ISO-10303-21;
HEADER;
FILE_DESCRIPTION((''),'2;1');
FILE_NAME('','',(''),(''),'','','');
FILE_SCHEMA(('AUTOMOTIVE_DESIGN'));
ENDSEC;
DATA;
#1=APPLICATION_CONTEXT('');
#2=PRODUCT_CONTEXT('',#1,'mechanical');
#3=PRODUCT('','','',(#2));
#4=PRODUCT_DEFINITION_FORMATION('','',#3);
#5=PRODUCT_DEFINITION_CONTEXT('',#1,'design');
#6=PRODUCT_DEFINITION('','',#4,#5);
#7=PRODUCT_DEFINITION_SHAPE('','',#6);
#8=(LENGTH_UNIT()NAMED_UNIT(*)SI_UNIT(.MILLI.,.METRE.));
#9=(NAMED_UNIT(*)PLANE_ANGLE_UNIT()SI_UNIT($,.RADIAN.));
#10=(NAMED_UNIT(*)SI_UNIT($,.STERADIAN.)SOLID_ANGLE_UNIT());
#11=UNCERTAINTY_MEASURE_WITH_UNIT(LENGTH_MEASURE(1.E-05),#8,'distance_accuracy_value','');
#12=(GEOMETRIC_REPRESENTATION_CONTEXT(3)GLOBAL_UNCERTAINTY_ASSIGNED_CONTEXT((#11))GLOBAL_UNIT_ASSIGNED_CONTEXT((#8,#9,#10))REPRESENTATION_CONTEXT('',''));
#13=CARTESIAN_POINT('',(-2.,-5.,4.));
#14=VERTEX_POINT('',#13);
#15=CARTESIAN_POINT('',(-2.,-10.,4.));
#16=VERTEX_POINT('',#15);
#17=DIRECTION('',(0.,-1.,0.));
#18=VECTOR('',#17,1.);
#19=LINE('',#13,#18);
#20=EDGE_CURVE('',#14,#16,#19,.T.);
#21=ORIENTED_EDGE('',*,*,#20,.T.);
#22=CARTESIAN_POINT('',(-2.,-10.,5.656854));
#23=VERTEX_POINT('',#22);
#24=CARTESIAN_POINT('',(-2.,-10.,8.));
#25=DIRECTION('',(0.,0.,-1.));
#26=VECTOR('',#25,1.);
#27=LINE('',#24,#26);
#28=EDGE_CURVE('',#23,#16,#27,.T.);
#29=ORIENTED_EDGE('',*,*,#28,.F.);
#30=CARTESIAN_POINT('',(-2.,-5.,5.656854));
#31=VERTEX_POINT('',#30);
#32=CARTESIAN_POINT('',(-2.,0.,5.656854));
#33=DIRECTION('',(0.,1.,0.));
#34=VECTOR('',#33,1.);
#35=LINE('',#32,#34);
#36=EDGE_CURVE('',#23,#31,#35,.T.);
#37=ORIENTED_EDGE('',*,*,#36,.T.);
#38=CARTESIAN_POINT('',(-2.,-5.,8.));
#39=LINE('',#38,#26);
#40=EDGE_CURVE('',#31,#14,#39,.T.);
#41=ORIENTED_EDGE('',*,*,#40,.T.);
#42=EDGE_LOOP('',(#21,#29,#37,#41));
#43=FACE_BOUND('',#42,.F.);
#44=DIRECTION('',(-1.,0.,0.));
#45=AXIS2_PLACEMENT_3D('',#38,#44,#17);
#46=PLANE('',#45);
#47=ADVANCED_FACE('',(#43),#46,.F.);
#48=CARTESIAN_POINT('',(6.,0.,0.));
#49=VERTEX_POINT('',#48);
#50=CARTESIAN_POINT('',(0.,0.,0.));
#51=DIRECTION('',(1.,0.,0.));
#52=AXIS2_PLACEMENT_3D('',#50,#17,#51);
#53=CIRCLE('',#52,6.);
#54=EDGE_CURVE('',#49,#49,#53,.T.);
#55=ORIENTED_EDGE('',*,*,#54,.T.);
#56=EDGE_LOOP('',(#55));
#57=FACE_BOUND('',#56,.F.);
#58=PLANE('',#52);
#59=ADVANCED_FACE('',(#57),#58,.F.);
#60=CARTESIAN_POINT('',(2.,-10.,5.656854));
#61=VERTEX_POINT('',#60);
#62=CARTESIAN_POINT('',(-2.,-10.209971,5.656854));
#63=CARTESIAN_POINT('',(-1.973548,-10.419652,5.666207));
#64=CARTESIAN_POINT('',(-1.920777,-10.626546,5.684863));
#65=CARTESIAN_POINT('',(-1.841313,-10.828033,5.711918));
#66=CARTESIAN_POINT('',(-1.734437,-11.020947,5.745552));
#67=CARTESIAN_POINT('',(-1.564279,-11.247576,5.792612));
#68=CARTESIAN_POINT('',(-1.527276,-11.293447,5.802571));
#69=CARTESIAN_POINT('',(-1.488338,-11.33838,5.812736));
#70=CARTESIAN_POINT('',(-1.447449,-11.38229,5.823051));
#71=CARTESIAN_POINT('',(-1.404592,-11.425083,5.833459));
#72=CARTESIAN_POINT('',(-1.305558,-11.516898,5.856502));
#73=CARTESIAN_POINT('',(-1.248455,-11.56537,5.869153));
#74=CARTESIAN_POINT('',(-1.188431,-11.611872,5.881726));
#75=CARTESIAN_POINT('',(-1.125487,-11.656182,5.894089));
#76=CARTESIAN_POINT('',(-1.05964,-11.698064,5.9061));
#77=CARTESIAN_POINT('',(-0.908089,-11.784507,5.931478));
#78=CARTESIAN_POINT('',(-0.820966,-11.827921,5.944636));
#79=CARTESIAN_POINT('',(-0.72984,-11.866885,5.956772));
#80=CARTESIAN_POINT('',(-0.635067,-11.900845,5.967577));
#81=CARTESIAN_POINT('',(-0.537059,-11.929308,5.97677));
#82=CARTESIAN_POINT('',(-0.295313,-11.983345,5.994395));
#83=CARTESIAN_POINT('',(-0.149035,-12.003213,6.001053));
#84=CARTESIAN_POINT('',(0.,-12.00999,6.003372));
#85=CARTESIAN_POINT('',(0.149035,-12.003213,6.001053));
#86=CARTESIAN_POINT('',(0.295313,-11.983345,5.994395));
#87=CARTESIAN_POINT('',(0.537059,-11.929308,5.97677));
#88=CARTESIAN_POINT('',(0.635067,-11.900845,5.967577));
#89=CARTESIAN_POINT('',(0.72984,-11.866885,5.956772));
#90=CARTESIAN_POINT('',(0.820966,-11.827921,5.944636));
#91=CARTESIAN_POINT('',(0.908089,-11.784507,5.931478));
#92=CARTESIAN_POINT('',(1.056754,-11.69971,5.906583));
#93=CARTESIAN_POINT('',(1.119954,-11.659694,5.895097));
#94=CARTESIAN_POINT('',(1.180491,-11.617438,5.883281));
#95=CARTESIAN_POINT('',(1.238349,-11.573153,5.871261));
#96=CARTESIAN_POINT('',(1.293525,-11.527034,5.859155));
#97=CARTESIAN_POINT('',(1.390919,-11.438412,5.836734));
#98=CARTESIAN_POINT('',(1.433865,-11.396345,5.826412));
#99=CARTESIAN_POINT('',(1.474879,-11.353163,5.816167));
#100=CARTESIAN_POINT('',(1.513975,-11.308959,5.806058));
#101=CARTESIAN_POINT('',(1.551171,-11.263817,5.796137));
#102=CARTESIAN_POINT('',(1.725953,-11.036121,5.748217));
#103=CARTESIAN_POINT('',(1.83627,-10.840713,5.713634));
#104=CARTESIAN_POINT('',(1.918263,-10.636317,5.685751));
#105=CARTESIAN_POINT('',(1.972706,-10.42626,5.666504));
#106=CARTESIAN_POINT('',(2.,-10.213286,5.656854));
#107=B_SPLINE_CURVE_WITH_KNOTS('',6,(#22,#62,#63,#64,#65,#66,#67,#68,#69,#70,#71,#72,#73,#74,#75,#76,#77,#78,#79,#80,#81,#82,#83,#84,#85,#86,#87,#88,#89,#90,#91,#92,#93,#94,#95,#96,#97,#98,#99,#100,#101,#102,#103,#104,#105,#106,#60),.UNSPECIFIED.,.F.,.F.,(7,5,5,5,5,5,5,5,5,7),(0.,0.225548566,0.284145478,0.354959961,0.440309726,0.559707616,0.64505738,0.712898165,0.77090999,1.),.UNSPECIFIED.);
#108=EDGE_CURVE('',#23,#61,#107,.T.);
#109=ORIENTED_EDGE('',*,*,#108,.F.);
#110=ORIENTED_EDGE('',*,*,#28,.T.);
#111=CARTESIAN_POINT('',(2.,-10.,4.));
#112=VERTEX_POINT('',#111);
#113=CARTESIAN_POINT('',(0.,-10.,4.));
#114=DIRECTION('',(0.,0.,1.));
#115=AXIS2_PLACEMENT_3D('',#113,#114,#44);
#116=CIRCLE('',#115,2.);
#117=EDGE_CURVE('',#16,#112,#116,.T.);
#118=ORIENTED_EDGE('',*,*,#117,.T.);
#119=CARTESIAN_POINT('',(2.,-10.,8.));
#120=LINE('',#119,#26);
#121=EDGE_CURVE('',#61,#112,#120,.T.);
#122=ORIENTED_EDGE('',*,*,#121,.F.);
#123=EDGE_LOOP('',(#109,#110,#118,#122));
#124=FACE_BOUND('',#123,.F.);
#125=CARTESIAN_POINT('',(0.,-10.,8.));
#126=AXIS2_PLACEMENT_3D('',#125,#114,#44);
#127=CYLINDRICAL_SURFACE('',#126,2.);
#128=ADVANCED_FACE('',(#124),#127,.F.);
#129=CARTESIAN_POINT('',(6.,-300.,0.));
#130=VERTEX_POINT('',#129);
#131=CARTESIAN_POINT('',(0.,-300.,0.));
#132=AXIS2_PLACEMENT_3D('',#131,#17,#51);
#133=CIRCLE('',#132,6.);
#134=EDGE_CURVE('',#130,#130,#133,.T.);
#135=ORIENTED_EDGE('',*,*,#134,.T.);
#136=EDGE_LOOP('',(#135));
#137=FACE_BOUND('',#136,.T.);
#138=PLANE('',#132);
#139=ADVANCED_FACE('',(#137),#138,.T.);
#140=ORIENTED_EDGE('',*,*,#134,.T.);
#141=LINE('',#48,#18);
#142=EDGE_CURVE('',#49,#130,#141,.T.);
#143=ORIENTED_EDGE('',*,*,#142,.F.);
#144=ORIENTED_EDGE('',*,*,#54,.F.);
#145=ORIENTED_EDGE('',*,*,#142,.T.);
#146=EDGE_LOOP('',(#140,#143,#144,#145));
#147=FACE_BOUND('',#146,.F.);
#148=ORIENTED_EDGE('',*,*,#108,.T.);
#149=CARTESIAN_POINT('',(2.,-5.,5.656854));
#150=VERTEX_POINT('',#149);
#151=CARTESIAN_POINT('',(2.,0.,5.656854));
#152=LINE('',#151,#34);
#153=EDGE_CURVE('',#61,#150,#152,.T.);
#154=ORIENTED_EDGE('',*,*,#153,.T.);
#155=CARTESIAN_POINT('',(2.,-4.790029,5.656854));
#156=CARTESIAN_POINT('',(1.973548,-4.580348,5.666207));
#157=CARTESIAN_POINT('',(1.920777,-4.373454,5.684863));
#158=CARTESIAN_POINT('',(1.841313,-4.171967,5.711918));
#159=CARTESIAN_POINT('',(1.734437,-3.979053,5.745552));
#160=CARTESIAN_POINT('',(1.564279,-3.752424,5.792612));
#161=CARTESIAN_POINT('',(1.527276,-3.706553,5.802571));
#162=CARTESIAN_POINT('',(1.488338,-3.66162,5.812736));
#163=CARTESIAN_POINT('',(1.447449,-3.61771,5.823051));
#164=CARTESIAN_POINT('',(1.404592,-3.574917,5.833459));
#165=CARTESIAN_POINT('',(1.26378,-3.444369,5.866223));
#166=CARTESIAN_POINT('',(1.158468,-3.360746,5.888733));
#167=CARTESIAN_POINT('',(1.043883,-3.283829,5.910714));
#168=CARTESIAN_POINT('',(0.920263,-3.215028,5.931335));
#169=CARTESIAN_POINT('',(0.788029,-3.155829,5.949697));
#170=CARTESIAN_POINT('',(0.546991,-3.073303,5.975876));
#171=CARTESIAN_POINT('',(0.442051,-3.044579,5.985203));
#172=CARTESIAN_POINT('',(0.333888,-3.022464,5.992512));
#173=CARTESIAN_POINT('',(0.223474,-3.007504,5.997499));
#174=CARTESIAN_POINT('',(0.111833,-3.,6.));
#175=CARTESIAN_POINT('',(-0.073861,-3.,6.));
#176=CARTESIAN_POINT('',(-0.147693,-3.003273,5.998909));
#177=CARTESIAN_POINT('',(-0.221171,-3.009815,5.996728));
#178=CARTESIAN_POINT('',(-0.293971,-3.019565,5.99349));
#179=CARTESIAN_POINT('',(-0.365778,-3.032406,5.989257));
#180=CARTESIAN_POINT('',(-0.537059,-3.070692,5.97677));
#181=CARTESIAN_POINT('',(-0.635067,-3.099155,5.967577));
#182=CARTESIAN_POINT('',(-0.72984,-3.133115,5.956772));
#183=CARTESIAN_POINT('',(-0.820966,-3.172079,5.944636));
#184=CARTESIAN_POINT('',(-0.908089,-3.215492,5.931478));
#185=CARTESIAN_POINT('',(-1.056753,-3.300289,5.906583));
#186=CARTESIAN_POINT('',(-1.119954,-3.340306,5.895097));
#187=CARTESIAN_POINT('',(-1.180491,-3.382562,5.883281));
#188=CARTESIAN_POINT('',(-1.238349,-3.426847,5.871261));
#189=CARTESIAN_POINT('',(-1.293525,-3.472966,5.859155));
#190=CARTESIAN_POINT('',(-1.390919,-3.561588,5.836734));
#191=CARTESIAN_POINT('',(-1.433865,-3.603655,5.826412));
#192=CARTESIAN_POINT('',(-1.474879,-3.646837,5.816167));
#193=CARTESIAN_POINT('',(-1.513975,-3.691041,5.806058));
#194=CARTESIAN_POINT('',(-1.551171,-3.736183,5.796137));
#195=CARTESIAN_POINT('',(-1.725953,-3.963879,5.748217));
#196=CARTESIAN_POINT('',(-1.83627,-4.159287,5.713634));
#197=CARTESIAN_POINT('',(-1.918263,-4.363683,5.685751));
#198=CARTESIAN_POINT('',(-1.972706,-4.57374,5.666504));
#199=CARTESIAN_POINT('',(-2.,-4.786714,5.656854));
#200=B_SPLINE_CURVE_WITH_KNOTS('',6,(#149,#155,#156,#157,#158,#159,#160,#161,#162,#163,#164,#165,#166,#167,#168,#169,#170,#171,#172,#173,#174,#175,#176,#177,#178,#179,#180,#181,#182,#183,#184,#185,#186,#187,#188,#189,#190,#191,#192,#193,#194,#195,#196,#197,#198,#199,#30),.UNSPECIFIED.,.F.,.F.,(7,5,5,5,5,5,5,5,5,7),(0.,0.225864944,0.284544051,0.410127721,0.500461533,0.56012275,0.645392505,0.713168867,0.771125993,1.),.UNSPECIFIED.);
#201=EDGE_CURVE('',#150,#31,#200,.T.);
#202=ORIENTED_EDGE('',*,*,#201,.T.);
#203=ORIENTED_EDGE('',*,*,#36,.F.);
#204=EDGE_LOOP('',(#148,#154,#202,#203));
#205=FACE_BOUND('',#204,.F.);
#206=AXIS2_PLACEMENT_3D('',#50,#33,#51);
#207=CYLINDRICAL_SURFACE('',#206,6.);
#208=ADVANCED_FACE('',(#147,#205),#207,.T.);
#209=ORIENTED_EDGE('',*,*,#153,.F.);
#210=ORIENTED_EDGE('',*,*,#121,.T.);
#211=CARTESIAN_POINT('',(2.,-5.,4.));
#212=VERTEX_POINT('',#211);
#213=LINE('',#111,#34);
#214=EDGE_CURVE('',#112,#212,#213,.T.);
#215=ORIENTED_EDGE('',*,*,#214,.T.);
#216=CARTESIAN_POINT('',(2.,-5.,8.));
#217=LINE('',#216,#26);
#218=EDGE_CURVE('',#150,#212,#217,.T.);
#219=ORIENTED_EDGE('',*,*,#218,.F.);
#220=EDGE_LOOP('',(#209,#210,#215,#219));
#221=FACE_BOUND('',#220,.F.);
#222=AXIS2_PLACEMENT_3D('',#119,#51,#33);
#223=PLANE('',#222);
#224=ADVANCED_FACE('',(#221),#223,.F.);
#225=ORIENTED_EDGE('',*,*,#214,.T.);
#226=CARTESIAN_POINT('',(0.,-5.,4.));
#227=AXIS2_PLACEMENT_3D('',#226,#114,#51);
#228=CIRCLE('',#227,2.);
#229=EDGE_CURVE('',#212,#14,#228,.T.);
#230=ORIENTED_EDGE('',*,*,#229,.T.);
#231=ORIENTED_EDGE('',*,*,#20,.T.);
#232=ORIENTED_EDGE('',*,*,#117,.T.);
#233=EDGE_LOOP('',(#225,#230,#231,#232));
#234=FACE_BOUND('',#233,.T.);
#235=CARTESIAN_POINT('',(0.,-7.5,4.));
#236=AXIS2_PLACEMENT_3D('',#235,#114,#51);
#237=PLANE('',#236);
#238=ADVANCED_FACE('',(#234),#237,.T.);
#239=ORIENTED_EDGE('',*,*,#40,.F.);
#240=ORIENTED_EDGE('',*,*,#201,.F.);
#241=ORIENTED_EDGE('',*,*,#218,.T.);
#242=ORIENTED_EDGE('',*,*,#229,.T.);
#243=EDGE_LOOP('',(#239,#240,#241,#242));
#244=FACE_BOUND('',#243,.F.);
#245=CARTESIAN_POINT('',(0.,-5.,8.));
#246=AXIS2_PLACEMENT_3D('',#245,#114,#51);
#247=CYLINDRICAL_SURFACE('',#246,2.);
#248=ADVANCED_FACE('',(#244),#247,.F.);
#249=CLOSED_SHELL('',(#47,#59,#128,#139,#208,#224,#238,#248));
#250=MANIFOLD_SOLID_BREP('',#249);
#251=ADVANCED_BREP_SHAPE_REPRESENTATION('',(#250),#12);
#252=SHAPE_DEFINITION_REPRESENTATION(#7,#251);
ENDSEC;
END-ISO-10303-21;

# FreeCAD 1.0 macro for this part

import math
import FreeCAD as App
import Part
import Sketcher
Q = App.Units.Quantity

doc = App.newDocument("Part")
body = doc.addObject("PartDesign::Body", "Body")

# Sketch on XZ plane
sketch1 = doc.addObject("Sketcher::SketchObject", "Sketch")
body.addObject(sketch1)
sketch1.AttachmentSupport = (doc.XZ_Plane, [""])
sketch1.MapMode = "FlatFace"
sketch1.addGeometry(Part.Circle(App.Vector(0, 0, 0), App.Vector(0, 0, 1), 6), False)
sketch1.addConstraint([
    Sketcher.Constraint("Coincident", 0, 3, -1, 1),
    Sketcher.Constraint("Diameter", 0, Q("12 mm")),
])
pad1 = doc.addObject("PartDesign::Pad", "Pad")
body.addObject(pad1)
pad1.Profile = sketch1
pad1.Length = 300

# Sketch on XY plane
sketch2 = doc.addObject("Sketcher::SketchObject", "Sketch001")
body.addObject(sketch2)
sketch2.AttachmentSupport = (doc.XY_Plane, [""])
sketch2.MapMode = "FlatFace"
sketch2.AttachmentOffset = App.Placement(App.Vector(0, 0, 8), App.Rotation())
sketch2.addGeometry([
    Part.LineSegment(App.Vector(-2, -5, 0), App.Vector(-2, -10, 0)),
    Part.ArcOfCircle(Part.Circle(App.Vector(0, -10, 0), App.Vector(0, 0, 1), 2), math.radians(180), math.radians(360)),
    Part.LineSegment(App.Vector(2, -10, 0), App.Vector(2, -5, 0)),
    Part.ArcOfCircle(Part.Circle(App.Vector(0, -5, 0), App.Vector(0, 0, 1), 2), math.radians(0), math.radians(180)),
], False)
sketch2.addConstraint([
    Sketcher.Constraint("Tangent", 0, 2, 1, 1),
    Sketcher.Constraint("Tangent", 1, 2, 2, 1),
    Sketcher.Constraint("Tangent", 2, 2, 3, 1),
    Sketcher.Constraint("Tangent", 3, 2, 0, 1),
    Sketcher.Constraint("Vertical", 0),
    Sketcher.Constraint("Vertical", 2),
    Sketcher.Constraint("PointOnObject", 1, 3, -2),
    Sketcher.Constraint("Radius", 1, Q("2 mm")),
    Sketcher.Constraint("DistanceY", 0, 2, 0, 1, Q("5 mm")),
    Sketcher.Constraint("DistanceY", 1, 3, -1, 1, Q("10 mm")),
])
pocket1 = doc.addObject("PartDesign::Pocket", "Pocket")
body.addObject(pocket1)
pocket1.Profile = sketch2
pocket1.Length = 4

doc.recompute()
